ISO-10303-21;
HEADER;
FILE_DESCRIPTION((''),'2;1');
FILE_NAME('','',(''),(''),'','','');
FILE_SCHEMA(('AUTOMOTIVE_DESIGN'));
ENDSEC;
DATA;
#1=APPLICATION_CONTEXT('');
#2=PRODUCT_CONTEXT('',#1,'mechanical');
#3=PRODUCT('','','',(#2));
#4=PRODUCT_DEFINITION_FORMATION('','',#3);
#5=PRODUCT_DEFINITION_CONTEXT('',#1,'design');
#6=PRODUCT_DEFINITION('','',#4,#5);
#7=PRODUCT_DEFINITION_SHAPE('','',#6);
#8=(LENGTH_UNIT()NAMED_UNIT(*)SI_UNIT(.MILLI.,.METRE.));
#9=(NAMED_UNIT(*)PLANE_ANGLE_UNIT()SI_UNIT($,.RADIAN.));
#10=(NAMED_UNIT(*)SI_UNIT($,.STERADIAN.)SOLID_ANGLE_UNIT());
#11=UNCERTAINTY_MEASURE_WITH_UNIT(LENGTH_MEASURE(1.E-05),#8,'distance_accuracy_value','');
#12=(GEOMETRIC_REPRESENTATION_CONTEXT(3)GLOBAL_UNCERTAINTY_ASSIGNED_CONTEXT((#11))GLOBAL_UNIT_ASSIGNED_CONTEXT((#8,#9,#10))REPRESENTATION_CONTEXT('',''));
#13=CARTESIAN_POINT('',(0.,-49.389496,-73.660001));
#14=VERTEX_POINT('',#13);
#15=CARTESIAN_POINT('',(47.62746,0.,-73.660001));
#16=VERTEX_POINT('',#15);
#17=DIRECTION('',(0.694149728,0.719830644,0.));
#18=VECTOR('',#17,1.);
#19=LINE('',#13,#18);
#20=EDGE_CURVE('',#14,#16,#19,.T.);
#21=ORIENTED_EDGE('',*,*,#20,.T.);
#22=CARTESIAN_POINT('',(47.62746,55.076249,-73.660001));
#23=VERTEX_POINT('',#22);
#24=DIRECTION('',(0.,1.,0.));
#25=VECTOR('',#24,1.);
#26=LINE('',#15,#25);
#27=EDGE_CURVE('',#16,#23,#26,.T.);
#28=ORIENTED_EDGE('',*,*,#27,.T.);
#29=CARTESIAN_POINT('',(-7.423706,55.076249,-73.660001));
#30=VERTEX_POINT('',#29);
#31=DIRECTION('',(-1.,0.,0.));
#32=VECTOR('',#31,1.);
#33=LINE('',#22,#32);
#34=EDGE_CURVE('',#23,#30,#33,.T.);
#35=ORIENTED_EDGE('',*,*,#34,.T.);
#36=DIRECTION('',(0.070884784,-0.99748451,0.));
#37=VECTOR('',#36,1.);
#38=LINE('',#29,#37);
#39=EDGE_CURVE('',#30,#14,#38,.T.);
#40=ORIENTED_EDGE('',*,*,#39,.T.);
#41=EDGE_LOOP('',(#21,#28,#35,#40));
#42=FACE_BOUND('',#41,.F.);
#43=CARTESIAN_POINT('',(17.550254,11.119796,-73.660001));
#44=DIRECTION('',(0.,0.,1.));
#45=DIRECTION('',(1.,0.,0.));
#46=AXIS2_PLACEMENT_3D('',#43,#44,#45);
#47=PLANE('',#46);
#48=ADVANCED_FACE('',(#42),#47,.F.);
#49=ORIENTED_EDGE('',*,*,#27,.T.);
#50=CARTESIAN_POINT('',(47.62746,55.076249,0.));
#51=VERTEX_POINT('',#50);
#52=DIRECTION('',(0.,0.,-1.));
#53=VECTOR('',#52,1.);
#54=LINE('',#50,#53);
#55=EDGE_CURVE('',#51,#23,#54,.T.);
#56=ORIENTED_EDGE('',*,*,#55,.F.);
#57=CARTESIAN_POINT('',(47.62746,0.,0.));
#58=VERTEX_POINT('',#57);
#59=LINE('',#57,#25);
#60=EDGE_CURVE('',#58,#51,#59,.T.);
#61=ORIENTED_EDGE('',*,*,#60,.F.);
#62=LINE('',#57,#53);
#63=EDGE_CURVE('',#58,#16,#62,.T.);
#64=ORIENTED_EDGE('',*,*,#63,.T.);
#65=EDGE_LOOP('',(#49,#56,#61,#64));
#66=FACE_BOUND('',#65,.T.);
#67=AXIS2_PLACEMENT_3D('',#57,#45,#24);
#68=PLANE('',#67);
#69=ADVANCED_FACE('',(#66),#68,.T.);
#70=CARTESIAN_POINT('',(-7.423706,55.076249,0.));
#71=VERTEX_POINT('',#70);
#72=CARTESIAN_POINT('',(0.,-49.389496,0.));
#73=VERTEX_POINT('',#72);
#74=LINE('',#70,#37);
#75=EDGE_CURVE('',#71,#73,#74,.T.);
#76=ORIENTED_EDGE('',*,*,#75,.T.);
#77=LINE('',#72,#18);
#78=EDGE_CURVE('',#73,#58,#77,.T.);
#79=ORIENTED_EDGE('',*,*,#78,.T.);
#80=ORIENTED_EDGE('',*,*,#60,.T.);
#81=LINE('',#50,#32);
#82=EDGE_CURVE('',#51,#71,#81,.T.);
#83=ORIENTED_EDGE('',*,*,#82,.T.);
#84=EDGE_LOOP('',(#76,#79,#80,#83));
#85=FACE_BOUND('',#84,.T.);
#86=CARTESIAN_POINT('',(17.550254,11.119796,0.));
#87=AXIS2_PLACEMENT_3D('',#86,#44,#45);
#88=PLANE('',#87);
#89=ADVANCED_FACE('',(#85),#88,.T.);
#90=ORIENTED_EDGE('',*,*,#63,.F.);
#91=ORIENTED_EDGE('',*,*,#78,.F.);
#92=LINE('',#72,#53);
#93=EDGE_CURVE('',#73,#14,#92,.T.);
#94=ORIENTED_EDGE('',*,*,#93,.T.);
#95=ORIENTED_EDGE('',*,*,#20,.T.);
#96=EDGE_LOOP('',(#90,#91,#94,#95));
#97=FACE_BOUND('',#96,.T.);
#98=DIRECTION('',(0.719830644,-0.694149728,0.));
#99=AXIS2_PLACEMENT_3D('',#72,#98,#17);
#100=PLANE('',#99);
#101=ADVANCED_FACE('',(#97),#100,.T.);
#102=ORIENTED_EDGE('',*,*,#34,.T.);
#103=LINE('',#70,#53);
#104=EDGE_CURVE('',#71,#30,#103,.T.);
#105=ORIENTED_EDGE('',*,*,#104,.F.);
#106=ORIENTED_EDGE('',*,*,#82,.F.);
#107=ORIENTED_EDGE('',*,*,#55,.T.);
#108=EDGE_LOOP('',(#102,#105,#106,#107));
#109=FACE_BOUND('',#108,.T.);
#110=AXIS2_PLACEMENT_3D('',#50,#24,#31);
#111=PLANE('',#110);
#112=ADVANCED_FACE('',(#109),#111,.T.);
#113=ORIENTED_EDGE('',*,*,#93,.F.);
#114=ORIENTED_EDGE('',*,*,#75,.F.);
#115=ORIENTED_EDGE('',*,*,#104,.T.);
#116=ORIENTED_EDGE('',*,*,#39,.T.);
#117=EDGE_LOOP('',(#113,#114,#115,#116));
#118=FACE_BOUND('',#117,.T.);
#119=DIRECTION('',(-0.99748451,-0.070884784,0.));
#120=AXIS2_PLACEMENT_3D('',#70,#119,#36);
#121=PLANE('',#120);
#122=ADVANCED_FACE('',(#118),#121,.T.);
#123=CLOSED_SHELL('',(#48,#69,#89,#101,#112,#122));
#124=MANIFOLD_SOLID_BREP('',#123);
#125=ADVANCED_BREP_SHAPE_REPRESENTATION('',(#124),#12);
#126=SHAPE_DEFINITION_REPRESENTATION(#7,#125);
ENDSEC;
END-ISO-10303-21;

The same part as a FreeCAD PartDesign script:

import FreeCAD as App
import Part
import Sketcher
Q = App.Units.Quantity


def add_polygon(sketch, points):
    """Adds a closed chain of lines whose ends are joined by coincident constraints."""
    first, n = sketch.GeometryCount, len(points)
    for a, b in zip(points, points[1:] + points[:1]):
        sketch.addGeometry(Part.LineSegment(App.Vector(*a, 0), App.Vector(*b, 0)), False)
    for i in range(n):
        sketch.addConstraint(Sketcher.Constraint("Coincident", first + i, 2, first + (i + 1) % n, 1))

doc = App.newDocument("Part")
params = doc.addObject("Spreadsheet::Sheet", "Params")
for row, (alias, value) in enumerate([
    ("pad1_length", "2.9 in"),
], start=1):
    params.set(f"A{row}", alias)
    params.set(f"B{row}", "=" + value)
    params.setAlias(f"B{row}", alias)

body = doc.addObject("PartDesign::Body", "Body")

# Sketch on XY plane
sketch1 = doc.addObject("Sketcher::SketchObject", "Sketch")
body.addObject(sketch1)
sketch1.AttachmentSupport = (doc.XY_Plane, [""])
sketch1.MapMode = "FlatFace"
add_polygon(sketch1, [(0, -49), (48, 0), (48, 55), (-7, 55)])  # lines 0-3
sketch1.addConstraint(Sketcher.Constraint("Vertical", 1))
sketch1.addConstraint(Sketcher.Constraint("Horizontal", 2))
sketch1.addConstraint(Sketcher.Constraint("PointOnObject", 0, 2, -1))
sketch1.addConstraint(Sketcher.Constraint("PointOnObject", 3, 2, -2))
sketch1.addConstraint(Sketcher.Constraint("DistanceY", 1, 1, 1, 2, Q("55.076249 mm")))
sketch1.addConstraint(Sketcher.Constraint("Distance", 0, Q("68.612661 mm")))
sketch1.addConstraint(Sketcher.Constraint("Distance", 3, Q("104.72919 mm")))
sketch1.addConstraint(Sketcher.Constraint("DistanceX", 2, 2, 2, 1, Q("55.051166 mm")))
pad1 = doc.addObject("PartDesign::Pad", "Pad")
body.addObject(pad1)
pad1.Profile = sketch1
pad1.setExpression("Length", "Params.pad1_length")
pad1.Reversed = True

doc.recompute()
